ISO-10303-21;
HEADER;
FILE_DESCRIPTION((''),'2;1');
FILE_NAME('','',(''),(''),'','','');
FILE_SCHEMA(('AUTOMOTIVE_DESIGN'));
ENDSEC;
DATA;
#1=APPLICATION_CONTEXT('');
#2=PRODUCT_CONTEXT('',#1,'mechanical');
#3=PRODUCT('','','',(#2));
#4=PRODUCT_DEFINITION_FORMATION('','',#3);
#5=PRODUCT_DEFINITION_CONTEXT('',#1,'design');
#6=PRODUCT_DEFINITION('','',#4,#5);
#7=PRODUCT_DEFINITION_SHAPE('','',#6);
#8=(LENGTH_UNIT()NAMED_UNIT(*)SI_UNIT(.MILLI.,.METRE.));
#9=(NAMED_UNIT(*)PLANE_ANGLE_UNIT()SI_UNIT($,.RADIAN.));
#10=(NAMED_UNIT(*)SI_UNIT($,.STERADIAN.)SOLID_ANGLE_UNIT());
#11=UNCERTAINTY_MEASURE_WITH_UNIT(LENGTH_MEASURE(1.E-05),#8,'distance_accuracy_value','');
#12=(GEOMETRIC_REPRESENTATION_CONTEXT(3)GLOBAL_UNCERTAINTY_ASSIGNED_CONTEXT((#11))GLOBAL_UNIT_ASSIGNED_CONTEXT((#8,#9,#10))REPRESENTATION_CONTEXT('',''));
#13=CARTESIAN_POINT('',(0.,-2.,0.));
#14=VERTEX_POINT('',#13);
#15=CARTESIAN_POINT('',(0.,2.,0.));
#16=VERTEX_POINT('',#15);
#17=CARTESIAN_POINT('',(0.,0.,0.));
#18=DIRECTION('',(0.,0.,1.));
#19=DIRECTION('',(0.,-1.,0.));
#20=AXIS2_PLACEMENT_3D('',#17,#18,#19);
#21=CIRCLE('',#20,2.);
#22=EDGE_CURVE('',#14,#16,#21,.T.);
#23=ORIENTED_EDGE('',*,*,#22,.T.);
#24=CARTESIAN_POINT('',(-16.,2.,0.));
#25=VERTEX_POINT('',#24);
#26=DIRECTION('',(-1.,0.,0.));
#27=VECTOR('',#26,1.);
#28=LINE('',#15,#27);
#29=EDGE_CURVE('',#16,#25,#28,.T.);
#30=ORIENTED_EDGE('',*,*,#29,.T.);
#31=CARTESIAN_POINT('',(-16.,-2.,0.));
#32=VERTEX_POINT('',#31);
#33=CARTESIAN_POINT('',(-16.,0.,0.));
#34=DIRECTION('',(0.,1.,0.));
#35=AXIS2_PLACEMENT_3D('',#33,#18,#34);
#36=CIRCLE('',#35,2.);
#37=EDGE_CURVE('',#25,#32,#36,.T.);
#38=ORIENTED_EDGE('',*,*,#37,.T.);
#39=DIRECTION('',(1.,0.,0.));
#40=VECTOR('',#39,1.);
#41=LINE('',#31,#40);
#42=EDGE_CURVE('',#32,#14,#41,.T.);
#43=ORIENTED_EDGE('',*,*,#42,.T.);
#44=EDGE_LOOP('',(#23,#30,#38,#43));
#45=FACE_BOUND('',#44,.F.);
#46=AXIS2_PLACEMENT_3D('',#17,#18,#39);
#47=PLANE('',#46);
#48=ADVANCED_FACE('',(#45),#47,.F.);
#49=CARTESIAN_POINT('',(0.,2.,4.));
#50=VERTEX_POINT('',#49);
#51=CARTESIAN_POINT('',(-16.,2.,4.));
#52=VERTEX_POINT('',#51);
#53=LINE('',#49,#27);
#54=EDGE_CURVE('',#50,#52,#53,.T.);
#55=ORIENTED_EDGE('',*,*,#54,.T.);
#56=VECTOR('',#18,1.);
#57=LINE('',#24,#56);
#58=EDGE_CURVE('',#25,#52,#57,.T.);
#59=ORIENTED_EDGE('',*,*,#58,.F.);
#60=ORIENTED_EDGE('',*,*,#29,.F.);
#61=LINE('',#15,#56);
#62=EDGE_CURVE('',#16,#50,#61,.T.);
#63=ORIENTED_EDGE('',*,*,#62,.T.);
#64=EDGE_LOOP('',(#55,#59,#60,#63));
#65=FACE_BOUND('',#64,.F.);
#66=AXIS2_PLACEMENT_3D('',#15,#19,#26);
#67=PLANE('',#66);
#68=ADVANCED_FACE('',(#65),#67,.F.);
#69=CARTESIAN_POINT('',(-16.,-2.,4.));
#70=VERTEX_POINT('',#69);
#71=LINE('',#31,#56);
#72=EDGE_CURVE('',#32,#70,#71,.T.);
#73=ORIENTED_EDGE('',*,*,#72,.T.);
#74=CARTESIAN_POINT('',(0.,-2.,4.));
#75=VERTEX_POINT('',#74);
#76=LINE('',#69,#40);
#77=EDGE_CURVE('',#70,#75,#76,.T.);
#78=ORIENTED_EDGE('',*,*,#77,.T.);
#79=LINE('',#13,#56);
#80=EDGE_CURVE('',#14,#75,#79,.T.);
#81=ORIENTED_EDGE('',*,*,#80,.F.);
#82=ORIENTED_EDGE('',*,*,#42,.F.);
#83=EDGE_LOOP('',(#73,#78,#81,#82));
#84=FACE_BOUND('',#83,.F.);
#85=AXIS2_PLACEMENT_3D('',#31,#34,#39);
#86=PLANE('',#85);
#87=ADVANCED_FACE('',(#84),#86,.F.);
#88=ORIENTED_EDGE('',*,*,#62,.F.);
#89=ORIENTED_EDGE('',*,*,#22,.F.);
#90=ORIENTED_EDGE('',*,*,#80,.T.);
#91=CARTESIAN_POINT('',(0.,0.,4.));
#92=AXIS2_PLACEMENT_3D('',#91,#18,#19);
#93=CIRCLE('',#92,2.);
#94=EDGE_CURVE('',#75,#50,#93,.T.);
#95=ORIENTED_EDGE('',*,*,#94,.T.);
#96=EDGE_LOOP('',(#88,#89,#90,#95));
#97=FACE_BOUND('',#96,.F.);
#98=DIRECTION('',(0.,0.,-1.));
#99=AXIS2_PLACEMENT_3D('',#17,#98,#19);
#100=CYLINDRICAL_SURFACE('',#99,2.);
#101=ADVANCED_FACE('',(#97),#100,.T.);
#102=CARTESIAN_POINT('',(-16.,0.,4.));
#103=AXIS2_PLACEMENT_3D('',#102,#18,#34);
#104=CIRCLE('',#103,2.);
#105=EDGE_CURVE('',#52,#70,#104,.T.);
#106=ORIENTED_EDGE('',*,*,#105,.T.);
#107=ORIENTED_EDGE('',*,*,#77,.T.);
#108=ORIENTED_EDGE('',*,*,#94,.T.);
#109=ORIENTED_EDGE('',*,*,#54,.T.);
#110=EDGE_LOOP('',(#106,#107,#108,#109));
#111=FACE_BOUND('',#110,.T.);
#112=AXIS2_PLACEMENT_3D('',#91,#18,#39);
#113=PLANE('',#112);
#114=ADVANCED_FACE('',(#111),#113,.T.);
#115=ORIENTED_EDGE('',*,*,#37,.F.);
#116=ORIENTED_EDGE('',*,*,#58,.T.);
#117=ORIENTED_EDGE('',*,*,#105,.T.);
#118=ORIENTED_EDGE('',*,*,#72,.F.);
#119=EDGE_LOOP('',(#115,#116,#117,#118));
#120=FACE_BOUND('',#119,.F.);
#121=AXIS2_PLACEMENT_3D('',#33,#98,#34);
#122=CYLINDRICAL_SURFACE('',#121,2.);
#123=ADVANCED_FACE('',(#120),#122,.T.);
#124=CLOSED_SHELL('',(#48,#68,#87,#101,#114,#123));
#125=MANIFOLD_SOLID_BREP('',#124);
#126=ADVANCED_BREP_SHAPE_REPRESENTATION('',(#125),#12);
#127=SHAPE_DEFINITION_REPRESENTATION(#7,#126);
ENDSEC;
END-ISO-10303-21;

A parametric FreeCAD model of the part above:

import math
import FreeCAD as App
import Part
import Sketcher

V = App.Vector

doc = App.newDocument("Part")
body = doc.addObject("PartDesign::Body", "Body")

# Sketch on XY plane
sketch1 = body.newObject("Sketcher::SketchObject", "Sketch")
sketch1.AttachmentSupport = (doc.getObject("XY_Plane"), [""])
sketch1.MapMode = "FlatFace"
sketch1.addGeometry([
    Part.ArcOfCircle(Part.Circle(V(0, 0, 0), V(0, 0, 1), 2), math.radians(-90), math.radians(90)),
    Part.LineSegment(V(0, 2, 0), V(-16, 2, 0)),
    Part.ArcOfCircle(Part.Circle(V(-16, 0, 0), V(0, 0, 1), 2), math.radians(90), math.radians(270)),
    Part.LineSegment(V(-16, -2, 0), V(0, -2, 0)),
], False)
sketch1.addConstraint([
    Sketcher.Constraint("Tangent", 0, 2, 1, 1),
    Sketcher.Constraint("Tangent", 1, 2, 2, 1),
    Sketcher.Constraint("Tangent", 2, 2, 3, 1),
    Sketcher.Constraint("Tangent", 3, 2, 0, 1),
    Sketcher.Constraint("Horizontal", 1),
    Sketcher.Constraint("Horizontal", 3),
    Sketcher.Constraint("Coincident", 0, 3, -1, 1),
    Sketcher.Constraint("Radius", 0, 2.0),
    Sketcher.Constraint("DistanceX", 1, 2, 1, 1, 16.0),
])
pad1 = body.newObject("PartDesign::Pad", "Pad")
pad1.Profile = sketch1
pad1.Length = 4

doc.recompute()
